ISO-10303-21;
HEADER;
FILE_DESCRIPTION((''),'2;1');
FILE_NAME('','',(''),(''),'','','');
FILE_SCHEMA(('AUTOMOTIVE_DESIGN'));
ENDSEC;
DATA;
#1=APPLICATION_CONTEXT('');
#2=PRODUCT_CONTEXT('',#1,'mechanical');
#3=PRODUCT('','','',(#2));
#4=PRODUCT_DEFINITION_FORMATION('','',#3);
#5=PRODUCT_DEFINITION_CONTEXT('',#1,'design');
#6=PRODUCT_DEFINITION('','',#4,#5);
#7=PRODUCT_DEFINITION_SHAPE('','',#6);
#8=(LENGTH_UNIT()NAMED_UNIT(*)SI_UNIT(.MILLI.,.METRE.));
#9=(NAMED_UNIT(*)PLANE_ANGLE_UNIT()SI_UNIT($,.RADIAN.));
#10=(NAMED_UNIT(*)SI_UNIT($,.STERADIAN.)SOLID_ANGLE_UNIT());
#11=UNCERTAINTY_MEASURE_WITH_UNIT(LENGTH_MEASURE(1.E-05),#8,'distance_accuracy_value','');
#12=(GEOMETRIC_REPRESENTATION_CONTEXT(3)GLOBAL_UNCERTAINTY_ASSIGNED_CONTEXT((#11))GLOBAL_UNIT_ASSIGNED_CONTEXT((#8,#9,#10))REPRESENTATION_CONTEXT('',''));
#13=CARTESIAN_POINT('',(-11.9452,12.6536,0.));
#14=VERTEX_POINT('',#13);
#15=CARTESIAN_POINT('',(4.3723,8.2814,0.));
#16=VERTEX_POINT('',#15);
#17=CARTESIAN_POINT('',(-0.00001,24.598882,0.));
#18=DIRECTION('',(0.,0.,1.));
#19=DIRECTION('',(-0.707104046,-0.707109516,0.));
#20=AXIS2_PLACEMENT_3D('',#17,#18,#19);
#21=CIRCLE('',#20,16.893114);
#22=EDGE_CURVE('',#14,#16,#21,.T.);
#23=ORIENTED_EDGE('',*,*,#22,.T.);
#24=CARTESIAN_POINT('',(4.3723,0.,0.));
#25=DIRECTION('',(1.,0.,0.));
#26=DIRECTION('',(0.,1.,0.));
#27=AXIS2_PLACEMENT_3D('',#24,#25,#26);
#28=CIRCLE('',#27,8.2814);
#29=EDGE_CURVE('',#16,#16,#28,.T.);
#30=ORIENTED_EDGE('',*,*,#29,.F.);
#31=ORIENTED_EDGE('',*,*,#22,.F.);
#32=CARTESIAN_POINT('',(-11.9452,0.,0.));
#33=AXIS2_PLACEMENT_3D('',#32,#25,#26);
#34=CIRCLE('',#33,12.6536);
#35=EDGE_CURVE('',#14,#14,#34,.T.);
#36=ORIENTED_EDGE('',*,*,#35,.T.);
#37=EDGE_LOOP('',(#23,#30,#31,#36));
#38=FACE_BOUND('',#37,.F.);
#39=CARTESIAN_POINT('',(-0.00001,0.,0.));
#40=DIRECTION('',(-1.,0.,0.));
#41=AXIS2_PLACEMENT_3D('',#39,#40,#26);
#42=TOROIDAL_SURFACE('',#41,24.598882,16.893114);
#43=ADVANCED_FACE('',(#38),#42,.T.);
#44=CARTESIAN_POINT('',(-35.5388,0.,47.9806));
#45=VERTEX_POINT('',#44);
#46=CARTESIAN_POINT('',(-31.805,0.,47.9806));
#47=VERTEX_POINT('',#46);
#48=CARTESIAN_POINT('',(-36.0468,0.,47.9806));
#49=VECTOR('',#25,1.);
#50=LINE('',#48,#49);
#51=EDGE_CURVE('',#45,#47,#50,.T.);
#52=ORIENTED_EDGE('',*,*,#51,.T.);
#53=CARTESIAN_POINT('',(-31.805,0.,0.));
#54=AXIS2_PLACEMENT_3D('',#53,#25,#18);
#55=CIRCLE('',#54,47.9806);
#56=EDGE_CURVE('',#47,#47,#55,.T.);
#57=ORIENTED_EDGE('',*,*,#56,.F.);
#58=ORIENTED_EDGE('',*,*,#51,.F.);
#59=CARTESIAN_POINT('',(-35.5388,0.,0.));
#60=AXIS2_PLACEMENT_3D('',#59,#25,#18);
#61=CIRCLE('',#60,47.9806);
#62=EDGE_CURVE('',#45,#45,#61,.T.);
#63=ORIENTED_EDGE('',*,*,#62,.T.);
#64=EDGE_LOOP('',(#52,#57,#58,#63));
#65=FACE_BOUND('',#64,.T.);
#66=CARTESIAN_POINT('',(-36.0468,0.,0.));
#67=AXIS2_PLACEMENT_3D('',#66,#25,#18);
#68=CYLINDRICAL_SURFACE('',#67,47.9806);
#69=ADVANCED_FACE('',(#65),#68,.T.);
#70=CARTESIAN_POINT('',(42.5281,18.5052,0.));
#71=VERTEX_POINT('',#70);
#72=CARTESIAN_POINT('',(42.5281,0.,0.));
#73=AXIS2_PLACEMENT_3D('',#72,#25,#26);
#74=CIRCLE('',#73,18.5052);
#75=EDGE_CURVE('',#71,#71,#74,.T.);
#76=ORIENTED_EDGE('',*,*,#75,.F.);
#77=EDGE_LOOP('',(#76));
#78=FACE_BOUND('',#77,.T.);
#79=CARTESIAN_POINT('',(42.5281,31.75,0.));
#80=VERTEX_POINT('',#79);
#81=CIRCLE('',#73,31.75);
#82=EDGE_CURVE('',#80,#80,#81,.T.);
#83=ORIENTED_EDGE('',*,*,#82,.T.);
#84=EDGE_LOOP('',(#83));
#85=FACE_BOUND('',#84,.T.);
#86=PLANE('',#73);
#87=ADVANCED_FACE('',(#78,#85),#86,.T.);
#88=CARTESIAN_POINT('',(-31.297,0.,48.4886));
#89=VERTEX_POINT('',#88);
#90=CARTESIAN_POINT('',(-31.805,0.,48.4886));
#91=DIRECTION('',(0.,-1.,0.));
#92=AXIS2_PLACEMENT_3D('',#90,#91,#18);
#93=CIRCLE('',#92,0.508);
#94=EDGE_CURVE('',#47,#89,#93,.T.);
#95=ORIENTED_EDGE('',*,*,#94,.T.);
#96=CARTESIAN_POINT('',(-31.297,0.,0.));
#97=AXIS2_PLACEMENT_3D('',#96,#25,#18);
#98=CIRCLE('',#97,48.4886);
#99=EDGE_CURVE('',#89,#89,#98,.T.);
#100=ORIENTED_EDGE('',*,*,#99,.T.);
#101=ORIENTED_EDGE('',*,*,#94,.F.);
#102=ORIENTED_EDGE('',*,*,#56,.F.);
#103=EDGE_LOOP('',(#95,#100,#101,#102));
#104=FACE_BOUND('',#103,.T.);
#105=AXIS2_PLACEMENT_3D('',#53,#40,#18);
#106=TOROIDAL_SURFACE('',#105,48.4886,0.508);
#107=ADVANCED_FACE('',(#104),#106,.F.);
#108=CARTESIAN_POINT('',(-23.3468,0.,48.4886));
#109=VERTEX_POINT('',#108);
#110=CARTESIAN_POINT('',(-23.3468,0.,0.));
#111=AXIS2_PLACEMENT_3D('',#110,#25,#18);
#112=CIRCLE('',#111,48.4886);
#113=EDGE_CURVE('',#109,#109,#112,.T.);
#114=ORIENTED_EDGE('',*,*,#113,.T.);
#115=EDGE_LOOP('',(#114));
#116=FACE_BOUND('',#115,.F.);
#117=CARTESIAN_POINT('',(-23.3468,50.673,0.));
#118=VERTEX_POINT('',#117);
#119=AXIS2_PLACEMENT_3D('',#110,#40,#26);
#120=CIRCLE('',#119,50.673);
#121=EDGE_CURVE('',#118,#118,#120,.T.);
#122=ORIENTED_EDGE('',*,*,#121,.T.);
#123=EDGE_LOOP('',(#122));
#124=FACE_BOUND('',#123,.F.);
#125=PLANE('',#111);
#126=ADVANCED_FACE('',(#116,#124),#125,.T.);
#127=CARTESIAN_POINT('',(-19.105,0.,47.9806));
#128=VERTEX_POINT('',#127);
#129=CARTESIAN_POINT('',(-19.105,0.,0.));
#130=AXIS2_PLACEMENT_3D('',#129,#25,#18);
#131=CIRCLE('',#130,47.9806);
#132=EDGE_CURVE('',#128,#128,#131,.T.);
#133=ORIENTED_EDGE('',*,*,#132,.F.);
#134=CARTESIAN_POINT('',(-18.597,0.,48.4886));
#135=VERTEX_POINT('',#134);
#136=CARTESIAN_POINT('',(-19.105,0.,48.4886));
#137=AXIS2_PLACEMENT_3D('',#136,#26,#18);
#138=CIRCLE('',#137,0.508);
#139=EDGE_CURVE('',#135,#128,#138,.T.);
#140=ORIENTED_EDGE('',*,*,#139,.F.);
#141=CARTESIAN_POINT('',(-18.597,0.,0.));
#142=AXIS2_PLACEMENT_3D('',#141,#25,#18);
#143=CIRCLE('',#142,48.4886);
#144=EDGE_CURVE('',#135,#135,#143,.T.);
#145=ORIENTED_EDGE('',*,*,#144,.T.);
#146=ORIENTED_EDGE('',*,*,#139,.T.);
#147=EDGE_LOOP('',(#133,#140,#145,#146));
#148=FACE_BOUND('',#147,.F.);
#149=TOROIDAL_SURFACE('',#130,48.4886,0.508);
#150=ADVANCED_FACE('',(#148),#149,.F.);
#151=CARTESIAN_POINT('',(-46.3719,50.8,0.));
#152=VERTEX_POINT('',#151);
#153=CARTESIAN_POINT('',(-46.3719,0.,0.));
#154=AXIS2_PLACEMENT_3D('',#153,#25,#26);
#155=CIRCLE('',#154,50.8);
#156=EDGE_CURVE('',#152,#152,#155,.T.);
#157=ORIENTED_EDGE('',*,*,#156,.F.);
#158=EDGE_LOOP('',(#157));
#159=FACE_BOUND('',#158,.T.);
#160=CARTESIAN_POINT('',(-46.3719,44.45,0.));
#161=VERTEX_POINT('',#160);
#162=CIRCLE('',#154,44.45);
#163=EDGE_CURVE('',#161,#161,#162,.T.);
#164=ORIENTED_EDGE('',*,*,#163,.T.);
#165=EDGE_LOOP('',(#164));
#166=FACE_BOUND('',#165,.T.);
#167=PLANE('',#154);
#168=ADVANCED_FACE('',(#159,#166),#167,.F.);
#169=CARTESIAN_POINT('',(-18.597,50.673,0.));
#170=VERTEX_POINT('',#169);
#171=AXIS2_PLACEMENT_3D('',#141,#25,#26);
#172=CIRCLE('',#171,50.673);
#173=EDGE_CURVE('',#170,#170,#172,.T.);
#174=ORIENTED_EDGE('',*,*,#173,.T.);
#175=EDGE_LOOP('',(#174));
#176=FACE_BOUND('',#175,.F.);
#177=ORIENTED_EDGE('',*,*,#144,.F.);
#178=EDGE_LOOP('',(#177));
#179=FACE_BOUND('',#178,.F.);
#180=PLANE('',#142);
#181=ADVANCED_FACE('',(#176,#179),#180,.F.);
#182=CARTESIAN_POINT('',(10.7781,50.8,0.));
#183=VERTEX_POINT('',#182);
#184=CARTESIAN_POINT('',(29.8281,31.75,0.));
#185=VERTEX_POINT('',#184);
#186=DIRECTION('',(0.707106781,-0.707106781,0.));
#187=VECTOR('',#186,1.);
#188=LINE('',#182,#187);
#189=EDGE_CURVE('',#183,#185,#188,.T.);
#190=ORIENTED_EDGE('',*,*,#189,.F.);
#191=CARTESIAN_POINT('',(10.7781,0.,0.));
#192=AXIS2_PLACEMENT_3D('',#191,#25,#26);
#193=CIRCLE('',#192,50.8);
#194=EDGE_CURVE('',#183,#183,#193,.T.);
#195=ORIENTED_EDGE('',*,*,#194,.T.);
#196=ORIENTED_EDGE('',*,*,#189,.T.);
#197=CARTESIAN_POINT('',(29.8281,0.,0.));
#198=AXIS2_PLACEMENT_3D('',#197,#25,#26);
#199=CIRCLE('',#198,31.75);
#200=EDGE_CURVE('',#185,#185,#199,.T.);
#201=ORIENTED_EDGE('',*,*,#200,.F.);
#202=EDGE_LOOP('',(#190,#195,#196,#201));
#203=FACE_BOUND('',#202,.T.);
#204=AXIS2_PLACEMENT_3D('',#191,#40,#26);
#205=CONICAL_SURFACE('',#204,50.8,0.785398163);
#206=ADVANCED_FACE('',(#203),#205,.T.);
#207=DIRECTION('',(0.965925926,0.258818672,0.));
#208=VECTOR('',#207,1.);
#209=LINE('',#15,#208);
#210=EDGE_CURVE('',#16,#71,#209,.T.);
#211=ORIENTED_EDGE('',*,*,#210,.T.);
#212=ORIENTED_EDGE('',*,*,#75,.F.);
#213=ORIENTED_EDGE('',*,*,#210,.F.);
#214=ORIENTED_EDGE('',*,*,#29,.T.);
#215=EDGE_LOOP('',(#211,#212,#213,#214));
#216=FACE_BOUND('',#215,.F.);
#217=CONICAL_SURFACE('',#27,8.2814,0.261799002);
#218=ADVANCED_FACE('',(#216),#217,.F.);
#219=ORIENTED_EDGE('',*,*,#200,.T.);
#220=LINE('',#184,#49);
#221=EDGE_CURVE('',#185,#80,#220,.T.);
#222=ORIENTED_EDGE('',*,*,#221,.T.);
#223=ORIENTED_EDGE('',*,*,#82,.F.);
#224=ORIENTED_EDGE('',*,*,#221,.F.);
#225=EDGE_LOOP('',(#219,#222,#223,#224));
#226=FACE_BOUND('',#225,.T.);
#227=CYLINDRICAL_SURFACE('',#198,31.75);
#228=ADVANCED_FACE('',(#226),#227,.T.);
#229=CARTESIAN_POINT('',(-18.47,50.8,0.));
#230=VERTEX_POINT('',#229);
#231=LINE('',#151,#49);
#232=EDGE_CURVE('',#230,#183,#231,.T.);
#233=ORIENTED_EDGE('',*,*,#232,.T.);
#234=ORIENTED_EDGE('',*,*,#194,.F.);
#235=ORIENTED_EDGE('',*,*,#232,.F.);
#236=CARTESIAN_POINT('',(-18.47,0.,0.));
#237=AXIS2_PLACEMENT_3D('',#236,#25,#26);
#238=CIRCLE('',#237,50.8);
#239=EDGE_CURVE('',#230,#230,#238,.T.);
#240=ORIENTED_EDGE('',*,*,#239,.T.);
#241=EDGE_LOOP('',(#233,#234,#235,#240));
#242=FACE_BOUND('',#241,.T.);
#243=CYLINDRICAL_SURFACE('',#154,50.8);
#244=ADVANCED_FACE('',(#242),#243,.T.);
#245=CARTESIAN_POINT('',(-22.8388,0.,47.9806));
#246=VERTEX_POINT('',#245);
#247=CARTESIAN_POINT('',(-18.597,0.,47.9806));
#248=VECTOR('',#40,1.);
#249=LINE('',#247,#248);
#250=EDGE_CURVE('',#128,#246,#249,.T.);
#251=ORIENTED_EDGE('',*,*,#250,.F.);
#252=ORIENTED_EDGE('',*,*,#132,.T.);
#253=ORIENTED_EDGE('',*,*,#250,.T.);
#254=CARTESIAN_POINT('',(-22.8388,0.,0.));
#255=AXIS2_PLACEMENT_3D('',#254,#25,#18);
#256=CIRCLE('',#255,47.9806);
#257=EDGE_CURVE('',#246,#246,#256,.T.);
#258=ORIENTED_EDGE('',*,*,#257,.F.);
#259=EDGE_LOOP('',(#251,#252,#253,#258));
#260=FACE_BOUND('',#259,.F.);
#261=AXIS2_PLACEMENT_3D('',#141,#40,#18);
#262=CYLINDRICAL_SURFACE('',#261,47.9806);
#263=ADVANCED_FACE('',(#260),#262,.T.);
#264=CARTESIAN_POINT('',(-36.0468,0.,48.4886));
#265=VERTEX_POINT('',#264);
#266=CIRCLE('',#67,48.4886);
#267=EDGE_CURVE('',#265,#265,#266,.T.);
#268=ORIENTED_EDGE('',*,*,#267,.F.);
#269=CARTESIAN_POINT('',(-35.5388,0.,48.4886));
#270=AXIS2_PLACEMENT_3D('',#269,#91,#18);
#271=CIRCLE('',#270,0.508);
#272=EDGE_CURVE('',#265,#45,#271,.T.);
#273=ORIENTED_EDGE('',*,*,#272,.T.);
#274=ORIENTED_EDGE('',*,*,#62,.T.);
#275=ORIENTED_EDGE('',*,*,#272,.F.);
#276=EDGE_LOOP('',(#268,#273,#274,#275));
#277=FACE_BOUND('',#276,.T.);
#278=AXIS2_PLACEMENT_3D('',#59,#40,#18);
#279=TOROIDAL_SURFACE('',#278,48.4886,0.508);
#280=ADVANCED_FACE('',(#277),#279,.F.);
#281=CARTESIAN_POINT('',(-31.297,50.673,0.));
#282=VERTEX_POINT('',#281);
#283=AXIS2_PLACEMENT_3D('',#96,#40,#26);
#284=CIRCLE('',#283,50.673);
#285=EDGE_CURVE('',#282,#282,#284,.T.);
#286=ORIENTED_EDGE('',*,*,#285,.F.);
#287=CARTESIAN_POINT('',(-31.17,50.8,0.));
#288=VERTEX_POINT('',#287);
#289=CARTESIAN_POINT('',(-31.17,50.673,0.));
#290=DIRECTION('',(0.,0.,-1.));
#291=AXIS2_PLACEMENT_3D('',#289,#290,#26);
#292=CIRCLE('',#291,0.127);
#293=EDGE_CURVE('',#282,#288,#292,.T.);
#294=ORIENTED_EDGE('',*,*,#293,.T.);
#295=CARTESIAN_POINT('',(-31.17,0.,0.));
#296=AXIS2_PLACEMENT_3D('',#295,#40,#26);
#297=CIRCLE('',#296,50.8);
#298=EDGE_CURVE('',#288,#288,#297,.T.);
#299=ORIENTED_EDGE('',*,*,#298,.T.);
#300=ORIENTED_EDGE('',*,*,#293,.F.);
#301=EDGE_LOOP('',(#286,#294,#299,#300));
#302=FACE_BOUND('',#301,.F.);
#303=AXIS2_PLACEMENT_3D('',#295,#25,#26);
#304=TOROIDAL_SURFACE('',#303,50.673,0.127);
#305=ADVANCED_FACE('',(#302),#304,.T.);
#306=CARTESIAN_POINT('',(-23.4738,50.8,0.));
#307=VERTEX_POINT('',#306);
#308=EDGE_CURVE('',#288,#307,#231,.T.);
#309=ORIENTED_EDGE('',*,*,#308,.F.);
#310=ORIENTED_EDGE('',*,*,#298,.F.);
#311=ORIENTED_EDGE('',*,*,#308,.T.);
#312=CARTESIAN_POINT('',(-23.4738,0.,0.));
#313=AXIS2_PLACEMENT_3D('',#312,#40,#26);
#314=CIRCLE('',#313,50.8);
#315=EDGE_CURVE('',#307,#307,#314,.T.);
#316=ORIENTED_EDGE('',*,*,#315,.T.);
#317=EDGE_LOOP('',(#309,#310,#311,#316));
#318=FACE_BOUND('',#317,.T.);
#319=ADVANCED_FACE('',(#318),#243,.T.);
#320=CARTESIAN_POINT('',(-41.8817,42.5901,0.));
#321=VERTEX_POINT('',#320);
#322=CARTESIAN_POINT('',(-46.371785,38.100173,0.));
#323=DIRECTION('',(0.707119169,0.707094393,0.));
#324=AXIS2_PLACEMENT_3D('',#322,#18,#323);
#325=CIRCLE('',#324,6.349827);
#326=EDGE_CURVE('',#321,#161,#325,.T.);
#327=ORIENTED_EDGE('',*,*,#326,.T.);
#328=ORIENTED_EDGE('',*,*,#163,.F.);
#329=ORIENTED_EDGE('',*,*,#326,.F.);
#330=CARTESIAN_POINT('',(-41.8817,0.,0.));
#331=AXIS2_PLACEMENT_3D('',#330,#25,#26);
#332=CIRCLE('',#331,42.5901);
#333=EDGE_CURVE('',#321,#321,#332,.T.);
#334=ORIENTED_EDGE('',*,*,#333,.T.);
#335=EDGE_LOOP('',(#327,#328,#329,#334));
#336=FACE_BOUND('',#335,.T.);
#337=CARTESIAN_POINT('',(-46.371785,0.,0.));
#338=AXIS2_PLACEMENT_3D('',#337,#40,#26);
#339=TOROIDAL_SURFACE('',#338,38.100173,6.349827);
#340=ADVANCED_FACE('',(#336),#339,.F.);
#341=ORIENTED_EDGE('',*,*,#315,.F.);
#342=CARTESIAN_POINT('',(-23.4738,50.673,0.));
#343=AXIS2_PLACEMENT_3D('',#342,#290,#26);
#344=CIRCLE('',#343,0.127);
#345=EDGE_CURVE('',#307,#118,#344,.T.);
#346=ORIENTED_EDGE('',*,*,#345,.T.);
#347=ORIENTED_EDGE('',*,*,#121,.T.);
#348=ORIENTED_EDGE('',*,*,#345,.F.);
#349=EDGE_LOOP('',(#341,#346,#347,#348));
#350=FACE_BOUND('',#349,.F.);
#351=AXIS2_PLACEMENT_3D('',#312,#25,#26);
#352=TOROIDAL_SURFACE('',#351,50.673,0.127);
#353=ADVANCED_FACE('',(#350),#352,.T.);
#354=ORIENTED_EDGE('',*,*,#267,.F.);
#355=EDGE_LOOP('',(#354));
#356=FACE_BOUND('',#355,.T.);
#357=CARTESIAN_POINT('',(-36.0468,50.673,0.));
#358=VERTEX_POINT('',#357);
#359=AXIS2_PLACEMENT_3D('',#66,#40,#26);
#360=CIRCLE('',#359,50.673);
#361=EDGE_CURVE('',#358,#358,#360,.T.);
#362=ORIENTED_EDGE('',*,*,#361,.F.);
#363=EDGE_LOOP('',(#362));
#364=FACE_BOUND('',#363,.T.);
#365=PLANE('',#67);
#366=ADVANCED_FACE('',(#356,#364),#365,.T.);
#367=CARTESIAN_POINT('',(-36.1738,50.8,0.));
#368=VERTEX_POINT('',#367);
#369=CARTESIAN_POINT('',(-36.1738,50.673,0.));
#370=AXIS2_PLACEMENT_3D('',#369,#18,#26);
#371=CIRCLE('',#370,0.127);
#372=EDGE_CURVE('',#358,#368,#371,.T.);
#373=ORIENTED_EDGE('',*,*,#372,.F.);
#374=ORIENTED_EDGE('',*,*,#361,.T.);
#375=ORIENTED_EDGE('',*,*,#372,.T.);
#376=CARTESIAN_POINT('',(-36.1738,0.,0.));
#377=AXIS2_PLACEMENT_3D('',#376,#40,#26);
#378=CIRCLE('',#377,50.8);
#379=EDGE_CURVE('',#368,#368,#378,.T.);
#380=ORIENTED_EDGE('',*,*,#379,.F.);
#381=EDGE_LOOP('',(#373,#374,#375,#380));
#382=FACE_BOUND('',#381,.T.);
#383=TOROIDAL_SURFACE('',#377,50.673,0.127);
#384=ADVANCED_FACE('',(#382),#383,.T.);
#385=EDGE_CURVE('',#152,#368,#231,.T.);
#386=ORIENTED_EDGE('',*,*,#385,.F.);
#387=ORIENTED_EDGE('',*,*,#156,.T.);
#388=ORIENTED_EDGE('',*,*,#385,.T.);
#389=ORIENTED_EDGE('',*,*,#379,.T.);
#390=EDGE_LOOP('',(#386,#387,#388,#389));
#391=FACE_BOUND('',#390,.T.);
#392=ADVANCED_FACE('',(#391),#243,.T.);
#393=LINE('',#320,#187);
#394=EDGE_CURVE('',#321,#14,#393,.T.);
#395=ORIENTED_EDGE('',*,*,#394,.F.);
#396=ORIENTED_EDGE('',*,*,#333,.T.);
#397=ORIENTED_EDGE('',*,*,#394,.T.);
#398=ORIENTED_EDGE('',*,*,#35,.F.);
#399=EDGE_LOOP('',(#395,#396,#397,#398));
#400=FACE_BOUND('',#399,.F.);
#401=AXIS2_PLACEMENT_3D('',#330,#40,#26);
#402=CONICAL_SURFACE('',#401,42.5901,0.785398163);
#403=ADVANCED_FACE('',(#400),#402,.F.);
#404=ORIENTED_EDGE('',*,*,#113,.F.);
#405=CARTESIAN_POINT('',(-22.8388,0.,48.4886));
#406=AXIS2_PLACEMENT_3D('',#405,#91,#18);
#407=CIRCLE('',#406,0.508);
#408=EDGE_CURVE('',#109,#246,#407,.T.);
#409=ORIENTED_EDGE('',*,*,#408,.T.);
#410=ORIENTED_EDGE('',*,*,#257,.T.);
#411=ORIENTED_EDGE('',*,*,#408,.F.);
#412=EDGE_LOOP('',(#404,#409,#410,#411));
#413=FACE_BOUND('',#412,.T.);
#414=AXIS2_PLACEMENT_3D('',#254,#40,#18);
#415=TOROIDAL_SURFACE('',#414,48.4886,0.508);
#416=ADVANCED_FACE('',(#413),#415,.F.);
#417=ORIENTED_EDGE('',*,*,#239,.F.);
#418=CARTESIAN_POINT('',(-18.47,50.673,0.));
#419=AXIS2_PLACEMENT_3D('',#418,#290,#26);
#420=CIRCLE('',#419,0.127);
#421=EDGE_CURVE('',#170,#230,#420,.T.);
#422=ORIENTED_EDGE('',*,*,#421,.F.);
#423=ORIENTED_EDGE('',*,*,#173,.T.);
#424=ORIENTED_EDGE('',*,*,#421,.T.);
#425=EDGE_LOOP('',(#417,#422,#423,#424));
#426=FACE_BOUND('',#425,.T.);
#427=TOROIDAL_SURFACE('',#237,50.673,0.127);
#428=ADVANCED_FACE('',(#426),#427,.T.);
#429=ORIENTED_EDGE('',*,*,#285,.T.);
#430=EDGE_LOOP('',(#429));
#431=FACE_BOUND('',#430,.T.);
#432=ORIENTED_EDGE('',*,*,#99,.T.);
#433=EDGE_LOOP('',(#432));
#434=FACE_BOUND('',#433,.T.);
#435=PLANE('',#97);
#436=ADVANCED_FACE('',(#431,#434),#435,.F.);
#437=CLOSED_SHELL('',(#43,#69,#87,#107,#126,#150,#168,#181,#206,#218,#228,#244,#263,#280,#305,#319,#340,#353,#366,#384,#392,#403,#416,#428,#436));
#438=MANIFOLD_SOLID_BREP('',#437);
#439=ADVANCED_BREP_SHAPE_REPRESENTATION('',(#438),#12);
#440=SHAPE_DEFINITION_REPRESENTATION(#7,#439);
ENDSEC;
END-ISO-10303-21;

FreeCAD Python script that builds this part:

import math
import FreeCAD as App
import Part
import Sketcher
from FreeCAD import Vector
Q = App.Units.Quantity


def edges_at(feature, points):
    """Names of the edges that pass closest to the given points."""
    edges = feature.Shape.Edges
    near = lambda p: min(range(len(edges)), key=lambda i: edges[i].distToShape(Part.Vertex(*p))[0])
    return sorted({f"Edge{near(p) + 1}" for p in points})

doc = App.newDocument("Part")
body = doc.addObject("PartDesign::Body", "Body")

sketch1 = body.newObject("Sketcher::SketchObject", "Sketch")
sketch1.AttachmentSupport = (doc.getObject("XY_Plane"), [""])
sketch1.MapMode = "FlatFace"
sketch1.addGeometry([
    Part.ArcOfCircle(Part.Circle(Vector(-46.3719, 38.1, 0), Vector(0, 0, 1), 6.350031), math.radians(44.999362), math.radians(90)),
    Part.LineSegment(Vector(-41.8817, 42.5901, 0), Vector(-11.9452, 12.6536, 0)),
    Part.ArcOfCircle(Part.Circle(Vector(0, 24.5989, 0), Vector(0, 0, 1), 16.893135), math.radians(-134.99976), math.radians(-74.999872)),
    Part.LineSegment(Vector(4.3723, 8.2814, 0), Vector(42.5281, 18.5052, 0)),
    Part.LineSegment(Vector(42.5281, 18.5052, 0), Vector(42.5281, 31.75, 0)),
    Part.LineSegment(Vector(42.5281, 31.75, 0), Vector(29.8281, 31.75, 0)),
    Part.LineSegment(Vector(29.8281, 31.75, 0), Vector(10.7781, 50.8, 0)),
    Part.LineSegment(Vector(10.7781, 50.8, 0), Vector(-46.3719, 50.8, 0)),
    Part.LineSegment(Vector(-46.3719, 50.8, 0), Vector(-46.3719, 44.45, 0)),
], False)
sketch1.addConstraint([
    Sketcher.Constraint("Tangent", 0, 1, 1, 1),
    Sketcher.Constraint("Tangent", 1, 2, 2, 1),
    Sketcher.Constraint("Tangent", 2, 2, 3, 1),
    Sketcher.Constraint("Coincident", 3, 2, 4, 1),
    Sketcher.Constraint("Coincident", 4, 2, 5, 1),
    Sketcher.Constraint("Coincident", 5, 2, 6, 1),
    Sketcher.Constraint("Coincident", 6, 2, 7, 1),
    Sketcher.Constraint("Coincident", 7, 2, 8, 1),
    Sketcher.Constraint("Coincident", 8, 2, 0, 2),
    Sketcher.Constraint("Vertical", 4),
    Sketcher.Constraint("Horizontal", 5),
    Sketcher.Constraint("Horizontal", 7),
    Sketcher.Constraint("Vertical", 8),
    Sketcher.Constraint("PointOnObject", 2, 3, -2),
    Sketcher.Constraint("Parallel", 1, 6),
    Sketcher.Constraint("Vertical", 0, 3, 7, 2),
    Sketcher.Constraint("Radius", 0, Q("0.25 in")),
    Sketcher.Constraint("DistanceY", -1, 1, 6, 2, Q("2 in")),
    Sketcher.Constraint("Angle", 1, Q("-45 deg")),
    Sketcher.Constraint("Angle", 3, Q("15 deg")),
    Sketcher.Constraint("DistanceX", 7, 2, 7, 1, Q("2.25 in")),
    Sketcher.Constraint("DistanceY", 8, 2, 8, 1, Q("0.25 in")),
    Sketcher.Constraint("DistanceY", -1, 1, 4, 2, Q("1.25 in")),
    Sketcher.Constraint("DistanceX", 6, 2, 4, 2, Q("1.25 in")),
    Sketcher.Constraint("DistanceY", -1, 1, 3, 2, 18.5052),
    Sketcher.Constraint("Radius", 2, 16.8931),
])
revolution = body.newObject("PartDesign::Revolution", "Revolution")
revolution.Profile = sketch1
revolution.ReferenceAxis = (sketch1, ["H_Axis"])
revolution.Angle = 360

sketch2 = body.newObject("Sketcher::SketchObject", "Sketch001")
sketch2.AttachmentSupport = (doc.getObject("XZ_Plane"), [""])
sketch2.MapMode = "FlatFace"
sketch2.addGeometry([
    Part.LineSegment(Vector(-36.0468, 50.8, 0), Vector(-31.297, 50.8, 0)),
    Part.LineSegment(Vector(-31.297, 50.8, 0), Vector(-31.297, 47.9806, 0)),
    Part.LineSegment(Vector(-31.297, 47.9806, 0), Vector(-36.0468, 47.9806, 0)),
    Part.LineSegment(Vector(-36.0468, 47.9806, 0), Vector(-36.0468, 50.8, 0)),
    Part.LineSegment(Vector(-23.3468, 47.9806, 0), Vector(-23.3468, 50.8, 0)),
    Part.LineSegment(Vector(-23.3468, 50.8, 0), Vector(-18.597, 50.8, 0)),
    Part.LineSegment(Vector(-18.597, 50.8, 0), Vector(-18.597, 47.9806, 0)),
    Part.LineSegment(Vector(-18.597, 47.9806, 0), Vector(-23.3468, 47.9806, 0)),
], False)
sketch2.addConstraint([
    Sketcher.Constraint("Coincident", 0, 2, 1, 1),
    Sketcher.Constraint("Coincident", 1, 2, 2, 1),
    Sketcher.Constraint("Coincident", 2, 2, 3, 1),
    Sketcher.Constraint("Coincident", 3, 2, 0, 1),
    Sketcher.Constraint("Coincident", 4, 2, 5, 1),
    Sketcher.Constraint("Coincident", 5, 2, 6, 1),
    Sketcher.Constraint("Coincident", 6, 2, 7, 1),
    Sketcher.Constraint("Coincident", 7, 2, 4, 1),
    Sketcher.Constraint("Horizontal", 0),
    Sketcher.Constraint("Vertical", 1),
    Sketcher.Constraint("Horizontal", 2),
    Sketcher.Constraint("Vertical", 3),
    Sketcher.Constraint("Vertical", 4),
    Sketcher.Constraint("Horizontal", 5),
    Sketcher.Constraint("Vertical", 6),
    Sketcher.Constraint("Horizontal", 7),
    Sketcher.Constraint("Horizontal", 3, 2, 4, 2),
    Sketcher.Constraint("Horizontal", 2, 2, 6, 2),
    Sketcher.Constraint("Equal", 2, 5),
    Sketcher.Constraint("DistanceX", 3, 2, 4, 2, Q("0.5 in")),
    Sketcher.Constraint("DistanceX", 0, 1, 0, 2, Q("0.187 in")),
    Sketcher.Constraint("DistanceY", 1, 2, 1, 1, Q("0.111 in")),
    Sketcher.Constraint("DistanceY", -1, 1, 0, 2, Q("2 in")),
    Sketcher.Constraint("DistanceX", 0, 2, -1, 1, 31.297),
])
groove = body.newObject("PartDesign::Groove", "Groove")
groove.Profile = sketch2
groove.ReferenceAxis = (sketch2, ["H_Axis"])
groove.Angle = 360
doc.recompute()

fillet = body.newObject("PartDesign::Fillet", "Fillet")
fillet.Base = (groove, edges_at(groove, [
    (-18.597, 0, -47.981),
    (-31.297, 0, -47.981),
    (-23.347, 0, -47.981),
    (-36.047, 0, -47.981),
]))
fillet.Radius = Q("0.02 in")
doc.recompute()

fillet2 = body.newObject("PartDesign::Fillet", "Fillet001")
fillet2.Base = (fillet, edges_at(fillet, [
    (-36.047, -50.8, 0),
    (-31.297, -50.8, 0),
    (-23.347, -50.8, 0),
    (-18.597, -50.8, 0),
]))
fillet2.Radius = Q("0.005 in")

doc.recompute()
